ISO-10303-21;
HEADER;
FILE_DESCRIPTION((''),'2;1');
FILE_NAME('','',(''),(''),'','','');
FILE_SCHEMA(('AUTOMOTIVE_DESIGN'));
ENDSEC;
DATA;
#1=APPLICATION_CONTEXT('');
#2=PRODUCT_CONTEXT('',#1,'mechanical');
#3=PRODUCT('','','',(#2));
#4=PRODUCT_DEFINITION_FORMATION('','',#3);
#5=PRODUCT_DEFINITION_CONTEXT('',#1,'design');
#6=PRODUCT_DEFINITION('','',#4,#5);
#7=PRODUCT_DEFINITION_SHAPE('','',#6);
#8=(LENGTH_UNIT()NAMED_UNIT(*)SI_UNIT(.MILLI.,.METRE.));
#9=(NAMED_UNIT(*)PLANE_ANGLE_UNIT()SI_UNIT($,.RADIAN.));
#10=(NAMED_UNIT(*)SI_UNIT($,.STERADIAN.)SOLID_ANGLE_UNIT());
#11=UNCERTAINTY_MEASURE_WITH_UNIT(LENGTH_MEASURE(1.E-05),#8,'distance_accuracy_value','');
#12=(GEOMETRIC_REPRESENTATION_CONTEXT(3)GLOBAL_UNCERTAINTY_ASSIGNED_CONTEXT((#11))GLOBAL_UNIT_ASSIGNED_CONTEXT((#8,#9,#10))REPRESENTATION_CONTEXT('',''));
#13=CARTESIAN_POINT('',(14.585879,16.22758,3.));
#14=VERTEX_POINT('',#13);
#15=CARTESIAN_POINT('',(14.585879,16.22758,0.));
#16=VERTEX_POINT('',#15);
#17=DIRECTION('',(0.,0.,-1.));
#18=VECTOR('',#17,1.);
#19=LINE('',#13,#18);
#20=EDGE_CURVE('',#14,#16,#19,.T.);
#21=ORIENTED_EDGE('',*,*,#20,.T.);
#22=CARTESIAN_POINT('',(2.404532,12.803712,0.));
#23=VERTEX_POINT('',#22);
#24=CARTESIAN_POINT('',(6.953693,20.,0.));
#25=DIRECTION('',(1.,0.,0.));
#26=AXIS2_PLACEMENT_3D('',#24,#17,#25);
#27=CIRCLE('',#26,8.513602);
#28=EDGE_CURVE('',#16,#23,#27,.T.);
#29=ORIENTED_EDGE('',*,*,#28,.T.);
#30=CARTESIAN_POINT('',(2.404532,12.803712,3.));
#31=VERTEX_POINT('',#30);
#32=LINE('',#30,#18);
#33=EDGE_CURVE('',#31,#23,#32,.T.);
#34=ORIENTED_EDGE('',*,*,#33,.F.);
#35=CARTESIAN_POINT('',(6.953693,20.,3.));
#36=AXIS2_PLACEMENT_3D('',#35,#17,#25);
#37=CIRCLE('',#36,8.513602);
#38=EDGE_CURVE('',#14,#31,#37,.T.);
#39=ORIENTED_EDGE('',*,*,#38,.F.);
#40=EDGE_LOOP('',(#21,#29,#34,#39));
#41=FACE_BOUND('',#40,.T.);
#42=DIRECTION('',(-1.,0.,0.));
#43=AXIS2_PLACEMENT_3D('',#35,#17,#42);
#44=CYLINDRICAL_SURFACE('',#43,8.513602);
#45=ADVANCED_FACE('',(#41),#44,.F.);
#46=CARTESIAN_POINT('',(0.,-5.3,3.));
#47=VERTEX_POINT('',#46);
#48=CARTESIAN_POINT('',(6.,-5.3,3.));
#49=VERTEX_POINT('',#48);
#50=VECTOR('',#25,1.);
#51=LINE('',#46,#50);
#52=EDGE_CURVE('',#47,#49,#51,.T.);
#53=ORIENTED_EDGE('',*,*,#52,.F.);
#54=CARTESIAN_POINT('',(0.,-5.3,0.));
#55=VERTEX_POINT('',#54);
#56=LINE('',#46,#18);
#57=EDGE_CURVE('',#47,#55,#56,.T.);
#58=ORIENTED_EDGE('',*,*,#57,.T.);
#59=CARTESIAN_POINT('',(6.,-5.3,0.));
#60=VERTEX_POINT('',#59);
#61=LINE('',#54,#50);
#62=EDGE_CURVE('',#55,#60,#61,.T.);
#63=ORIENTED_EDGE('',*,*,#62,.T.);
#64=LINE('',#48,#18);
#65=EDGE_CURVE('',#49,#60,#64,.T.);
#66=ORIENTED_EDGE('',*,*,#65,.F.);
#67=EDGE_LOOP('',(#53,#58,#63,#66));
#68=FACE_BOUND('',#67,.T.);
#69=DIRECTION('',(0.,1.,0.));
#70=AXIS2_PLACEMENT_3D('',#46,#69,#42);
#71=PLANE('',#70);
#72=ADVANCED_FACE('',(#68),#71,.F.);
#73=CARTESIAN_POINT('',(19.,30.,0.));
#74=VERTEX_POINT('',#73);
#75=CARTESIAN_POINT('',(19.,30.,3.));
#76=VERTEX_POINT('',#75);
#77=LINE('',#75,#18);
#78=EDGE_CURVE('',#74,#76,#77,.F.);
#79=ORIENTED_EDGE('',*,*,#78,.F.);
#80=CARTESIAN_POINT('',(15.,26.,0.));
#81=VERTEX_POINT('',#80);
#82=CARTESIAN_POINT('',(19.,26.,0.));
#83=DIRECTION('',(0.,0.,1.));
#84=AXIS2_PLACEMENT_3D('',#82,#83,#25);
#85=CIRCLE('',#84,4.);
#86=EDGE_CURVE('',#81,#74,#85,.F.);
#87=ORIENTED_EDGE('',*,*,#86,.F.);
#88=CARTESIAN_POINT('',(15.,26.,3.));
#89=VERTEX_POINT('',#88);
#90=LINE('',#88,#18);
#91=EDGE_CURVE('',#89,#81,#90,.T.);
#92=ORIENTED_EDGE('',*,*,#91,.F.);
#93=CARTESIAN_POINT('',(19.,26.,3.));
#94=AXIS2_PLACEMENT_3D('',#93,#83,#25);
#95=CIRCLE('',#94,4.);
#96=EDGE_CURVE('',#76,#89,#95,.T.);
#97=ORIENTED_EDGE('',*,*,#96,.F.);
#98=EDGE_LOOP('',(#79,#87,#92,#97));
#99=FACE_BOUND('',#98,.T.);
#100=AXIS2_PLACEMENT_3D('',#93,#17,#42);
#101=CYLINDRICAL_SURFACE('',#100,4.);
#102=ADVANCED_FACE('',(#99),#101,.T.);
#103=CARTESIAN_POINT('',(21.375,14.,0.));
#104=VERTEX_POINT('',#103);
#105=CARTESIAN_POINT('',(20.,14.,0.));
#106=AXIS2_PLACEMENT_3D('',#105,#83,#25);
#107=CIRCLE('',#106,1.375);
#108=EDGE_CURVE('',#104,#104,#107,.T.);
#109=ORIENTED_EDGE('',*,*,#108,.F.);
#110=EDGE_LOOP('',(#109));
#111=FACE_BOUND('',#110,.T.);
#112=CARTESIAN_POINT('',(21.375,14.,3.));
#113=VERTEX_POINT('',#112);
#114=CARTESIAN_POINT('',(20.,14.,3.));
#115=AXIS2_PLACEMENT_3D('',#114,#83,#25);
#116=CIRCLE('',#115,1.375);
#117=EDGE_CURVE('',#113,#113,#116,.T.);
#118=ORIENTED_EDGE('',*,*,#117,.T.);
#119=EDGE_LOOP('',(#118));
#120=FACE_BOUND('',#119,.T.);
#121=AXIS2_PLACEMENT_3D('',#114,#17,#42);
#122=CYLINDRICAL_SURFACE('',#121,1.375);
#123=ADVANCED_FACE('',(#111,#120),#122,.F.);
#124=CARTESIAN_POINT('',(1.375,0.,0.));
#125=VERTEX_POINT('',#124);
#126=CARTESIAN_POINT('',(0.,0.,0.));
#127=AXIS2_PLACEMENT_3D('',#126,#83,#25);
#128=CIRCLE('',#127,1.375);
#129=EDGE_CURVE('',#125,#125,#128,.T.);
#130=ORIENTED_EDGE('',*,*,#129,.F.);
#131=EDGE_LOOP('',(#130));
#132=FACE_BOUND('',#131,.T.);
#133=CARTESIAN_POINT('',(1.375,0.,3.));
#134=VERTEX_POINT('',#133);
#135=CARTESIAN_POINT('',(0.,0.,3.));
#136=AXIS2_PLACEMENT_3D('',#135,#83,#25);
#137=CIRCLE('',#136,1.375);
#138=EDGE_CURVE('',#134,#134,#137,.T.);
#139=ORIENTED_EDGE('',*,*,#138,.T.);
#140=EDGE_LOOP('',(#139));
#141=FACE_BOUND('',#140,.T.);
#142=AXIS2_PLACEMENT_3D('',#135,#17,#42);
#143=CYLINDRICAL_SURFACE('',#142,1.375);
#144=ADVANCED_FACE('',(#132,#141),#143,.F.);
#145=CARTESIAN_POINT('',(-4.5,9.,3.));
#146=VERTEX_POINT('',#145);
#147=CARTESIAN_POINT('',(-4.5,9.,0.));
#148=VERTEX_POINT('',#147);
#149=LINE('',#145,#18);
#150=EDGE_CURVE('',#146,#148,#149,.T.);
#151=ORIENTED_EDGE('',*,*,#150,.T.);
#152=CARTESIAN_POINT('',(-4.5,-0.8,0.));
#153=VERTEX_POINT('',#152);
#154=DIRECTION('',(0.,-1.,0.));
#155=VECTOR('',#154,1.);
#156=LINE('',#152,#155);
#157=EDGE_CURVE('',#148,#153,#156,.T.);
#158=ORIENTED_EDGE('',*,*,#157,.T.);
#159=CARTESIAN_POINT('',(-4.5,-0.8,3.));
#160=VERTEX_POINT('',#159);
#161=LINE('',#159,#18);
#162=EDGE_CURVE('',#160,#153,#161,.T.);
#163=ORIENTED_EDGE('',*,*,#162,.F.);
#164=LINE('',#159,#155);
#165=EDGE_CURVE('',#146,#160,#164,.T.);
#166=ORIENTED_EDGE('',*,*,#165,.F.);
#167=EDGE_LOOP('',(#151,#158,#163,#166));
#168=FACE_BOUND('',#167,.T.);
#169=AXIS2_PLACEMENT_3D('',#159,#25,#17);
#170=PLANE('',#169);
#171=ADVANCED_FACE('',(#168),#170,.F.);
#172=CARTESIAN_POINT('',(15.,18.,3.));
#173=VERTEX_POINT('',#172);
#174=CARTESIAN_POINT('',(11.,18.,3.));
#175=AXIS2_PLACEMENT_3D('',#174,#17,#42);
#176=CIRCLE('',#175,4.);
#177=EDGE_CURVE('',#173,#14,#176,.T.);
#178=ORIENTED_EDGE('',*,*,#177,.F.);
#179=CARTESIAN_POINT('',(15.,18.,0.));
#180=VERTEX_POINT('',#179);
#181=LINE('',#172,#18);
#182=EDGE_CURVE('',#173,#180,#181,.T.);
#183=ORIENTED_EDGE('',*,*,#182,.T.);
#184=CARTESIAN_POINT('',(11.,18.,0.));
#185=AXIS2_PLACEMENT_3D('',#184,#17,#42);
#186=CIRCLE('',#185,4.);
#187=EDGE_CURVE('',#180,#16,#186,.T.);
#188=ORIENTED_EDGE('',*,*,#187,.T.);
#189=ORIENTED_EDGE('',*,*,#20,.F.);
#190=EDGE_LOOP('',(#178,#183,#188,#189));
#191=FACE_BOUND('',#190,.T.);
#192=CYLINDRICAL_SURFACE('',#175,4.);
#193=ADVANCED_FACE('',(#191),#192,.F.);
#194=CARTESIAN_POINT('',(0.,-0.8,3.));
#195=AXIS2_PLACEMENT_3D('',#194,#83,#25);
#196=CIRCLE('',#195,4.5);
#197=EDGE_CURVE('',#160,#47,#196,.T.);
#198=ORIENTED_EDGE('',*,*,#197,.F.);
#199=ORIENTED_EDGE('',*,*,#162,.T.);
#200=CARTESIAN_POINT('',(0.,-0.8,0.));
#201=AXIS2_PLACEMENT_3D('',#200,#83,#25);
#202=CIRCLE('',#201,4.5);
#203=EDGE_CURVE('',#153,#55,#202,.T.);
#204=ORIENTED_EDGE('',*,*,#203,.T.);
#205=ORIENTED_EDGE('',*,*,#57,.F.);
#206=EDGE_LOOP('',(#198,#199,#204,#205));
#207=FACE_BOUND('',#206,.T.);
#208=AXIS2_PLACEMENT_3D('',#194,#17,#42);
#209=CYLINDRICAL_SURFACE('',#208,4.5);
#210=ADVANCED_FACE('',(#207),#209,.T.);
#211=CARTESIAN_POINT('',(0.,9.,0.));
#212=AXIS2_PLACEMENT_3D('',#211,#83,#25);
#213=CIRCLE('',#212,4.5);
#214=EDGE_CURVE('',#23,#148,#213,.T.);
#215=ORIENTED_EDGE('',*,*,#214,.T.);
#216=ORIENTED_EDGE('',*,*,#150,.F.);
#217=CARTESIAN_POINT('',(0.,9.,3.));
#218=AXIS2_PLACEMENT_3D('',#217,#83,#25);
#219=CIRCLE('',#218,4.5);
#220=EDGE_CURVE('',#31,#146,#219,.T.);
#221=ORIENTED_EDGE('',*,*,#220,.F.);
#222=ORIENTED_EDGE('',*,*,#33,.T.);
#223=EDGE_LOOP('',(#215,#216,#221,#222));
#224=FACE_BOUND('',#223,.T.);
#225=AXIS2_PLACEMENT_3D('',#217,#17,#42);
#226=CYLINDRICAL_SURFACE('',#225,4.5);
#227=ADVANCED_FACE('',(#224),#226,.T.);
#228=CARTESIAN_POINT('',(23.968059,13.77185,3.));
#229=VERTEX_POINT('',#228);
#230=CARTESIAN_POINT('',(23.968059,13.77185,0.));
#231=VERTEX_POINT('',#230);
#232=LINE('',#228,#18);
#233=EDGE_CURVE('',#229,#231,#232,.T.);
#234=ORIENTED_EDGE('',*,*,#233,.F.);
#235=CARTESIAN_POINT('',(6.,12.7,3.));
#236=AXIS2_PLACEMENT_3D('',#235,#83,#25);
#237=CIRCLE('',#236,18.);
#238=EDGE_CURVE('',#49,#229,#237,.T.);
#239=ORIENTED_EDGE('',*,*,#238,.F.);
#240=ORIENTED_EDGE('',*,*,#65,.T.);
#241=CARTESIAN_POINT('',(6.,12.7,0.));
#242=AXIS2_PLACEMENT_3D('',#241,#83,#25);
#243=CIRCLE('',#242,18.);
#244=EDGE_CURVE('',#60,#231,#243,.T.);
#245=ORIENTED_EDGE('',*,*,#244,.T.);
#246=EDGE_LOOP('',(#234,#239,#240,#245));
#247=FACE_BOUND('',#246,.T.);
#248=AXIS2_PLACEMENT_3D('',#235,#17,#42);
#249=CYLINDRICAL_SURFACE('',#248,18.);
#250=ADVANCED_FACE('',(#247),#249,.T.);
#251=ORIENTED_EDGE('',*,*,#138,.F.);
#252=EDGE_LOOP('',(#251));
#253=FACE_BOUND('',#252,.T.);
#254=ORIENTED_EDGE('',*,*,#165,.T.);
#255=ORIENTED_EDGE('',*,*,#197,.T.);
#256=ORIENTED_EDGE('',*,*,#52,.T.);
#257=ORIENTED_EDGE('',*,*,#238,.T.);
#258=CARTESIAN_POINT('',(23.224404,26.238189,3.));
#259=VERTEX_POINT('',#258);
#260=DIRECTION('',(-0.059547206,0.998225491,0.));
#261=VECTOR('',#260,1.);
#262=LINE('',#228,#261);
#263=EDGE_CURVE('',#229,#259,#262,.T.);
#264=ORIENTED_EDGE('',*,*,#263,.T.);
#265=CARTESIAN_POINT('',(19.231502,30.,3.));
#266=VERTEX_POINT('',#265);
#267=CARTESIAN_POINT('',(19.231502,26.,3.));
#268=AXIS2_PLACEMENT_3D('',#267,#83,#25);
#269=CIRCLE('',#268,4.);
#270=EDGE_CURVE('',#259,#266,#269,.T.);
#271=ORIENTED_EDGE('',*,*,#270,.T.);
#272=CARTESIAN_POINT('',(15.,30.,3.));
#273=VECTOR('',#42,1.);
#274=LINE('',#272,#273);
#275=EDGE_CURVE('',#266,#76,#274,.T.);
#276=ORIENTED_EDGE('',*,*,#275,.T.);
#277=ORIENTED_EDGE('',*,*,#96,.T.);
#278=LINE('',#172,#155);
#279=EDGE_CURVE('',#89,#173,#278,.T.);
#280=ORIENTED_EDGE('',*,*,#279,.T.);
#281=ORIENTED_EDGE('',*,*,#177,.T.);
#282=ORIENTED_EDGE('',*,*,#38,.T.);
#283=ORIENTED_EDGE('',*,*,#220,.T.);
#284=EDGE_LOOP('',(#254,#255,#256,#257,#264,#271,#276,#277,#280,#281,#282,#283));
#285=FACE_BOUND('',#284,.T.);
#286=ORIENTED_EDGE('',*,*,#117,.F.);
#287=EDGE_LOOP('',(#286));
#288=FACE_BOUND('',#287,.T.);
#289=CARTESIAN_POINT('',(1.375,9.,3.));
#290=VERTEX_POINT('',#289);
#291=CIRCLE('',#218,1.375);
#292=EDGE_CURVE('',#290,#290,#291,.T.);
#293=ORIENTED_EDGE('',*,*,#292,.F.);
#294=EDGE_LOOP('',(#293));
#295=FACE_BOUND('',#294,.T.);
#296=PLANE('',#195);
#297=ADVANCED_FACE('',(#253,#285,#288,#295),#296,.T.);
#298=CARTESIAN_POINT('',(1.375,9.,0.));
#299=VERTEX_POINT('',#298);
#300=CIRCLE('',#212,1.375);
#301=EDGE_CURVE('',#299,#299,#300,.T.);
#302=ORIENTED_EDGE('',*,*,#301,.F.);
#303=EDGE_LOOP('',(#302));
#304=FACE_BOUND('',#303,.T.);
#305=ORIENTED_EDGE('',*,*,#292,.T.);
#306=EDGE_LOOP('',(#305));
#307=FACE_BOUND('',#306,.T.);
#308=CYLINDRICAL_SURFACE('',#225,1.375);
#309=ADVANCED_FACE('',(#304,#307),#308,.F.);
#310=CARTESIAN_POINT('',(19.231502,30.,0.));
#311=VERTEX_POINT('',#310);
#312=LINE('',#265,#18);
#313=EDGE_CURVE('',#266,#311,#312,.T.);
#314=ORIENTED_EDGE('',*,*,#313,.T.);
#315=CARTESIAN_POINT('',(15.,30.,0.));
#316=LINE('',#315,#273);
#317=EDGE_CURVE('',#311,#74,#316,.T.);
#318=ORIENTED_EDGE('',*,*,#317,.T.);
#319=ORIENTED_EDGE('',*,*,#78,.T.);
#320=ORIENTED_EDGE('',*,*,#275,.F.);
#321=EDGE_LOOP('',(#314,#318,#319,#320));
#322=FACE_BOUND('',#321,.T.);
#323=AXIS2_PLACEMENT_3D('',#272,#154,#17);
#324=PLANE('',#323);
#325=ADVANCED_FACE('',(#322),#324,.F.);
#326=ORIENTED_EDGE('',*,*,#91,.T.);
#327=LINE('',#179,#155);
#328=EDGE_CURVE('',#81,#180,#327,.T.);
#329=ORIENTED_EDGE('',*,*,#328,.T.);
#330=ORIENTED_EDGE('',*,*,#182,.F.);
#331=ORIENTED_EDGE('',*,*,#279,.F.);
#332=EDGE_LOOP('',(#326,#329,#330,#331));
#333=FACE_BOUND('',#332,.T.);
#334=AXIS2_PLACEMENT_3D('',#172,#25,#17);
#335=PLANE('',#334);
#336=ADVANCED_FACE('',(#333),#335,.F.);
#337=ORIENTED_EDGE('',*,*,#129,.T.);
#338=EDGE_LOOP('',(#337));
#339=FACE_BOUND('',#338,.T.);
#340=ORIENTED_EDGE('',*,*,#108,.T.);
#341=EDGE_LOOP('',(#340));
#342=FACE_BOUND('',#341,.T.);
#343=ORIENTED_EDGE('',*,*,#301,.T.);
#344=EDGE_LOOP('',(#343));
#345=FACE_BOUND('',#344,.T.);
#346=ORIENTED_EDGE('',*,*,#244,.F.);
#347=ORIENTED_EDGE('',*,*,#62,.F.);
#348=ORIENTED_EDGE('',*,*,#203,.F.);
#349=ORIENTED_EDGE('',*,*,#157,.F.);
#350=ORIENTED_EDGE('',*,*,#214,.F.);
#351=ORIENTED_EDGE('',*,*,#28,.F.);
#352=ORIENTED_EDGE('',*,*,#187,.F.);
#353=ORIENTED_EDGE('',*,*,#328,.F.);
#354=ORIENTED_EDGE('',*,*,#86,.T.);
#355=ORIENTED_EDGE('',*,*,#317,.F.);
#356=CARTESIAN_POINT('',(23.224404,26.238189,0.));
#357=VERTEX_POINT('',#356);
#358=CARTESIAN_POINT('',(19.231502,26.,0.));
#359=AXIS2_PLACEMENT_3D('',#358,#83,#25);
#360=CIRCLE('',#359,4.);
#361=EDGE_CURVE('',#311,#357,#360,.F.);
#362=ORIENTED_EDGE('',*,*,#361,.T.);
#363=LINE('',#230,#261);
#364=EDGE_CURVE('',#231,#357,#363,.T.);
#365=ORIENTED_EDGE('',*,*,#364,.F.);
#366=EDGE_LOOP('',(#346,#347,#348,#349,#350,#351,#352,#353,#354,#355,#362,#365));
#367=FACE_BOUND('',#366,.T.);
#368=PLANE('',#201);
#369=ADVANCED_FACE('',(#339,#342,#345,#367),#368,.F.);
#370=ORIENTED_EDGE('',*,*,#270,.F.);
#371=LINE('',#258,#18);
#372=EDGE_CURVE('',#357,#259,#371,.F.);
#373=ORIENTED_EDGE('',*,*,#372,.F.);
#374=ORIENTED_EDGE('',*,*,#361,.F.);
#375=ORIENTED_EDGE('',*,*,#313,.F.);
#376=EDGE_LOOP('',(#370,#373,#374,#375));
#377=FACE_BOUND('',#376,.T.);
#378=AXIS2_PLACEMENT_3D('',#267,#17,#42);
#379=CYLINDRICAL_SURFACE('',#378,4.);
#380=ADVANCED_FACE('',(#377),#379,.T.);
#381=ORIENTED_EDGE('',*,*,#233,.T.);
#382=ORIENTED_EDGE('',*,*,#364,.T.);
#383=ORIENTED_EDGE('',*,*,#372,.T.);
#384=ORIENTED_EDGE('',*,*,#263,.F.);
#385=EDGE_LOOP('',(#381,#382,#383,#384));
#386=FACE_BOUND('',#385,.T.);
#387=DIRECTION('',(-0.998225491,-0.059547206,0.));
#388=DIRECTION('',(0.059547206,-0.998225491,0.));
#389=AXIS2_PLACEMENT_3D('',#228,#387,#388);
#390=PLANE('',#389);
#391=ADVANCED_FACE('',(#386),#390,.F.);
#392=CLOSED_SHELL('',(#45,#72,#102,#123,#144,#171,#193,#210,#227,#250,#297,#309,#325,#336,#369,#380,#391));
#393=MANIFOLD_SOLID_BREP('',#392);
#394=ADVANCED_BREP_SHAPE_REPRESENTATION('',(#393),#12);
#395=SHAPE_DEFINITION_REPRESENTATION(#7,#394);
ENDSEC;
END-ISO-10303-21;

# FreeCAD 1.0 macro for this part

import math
import FreeCAD as App
import Part
import Sketcher
from FreeCAD import Vector


def edges_at(feature, points):
    """Names of the edges that pass closest to the given points."""
    edges = feature.Shape.Edges
    near = lambda p: min(range(len(edges)), key=lambda i: edges[i].distToShape(Part.Vertex(*p))[0])
    return sorted({f"Edge{near(p) + 1}" for p in points})

doc = App.newDocument("Part")
body = doc.addObject("PartDesign::Body", "Body")

# Sketch on XY plane
sketch1 = body.newObject("Sketcher::SketchObject", "Sketch")
sketch1.AttachmentSupport = (doc.getObject("XY_Plane"), [""])
sketch1.MapMode = "FlatFace"
sketch1.addGeometry([
    Part.LineSegment(Vector(-4.5, 9, 0), Vector(-4.5, -0.8, 0)),  # 0
    Part.ArcOfCircle(Part.Circle(Vector(0, -0.8, 0), Vector(0, 0, 1), 4.5), math.radians(-180), math.radians(-90)),  # 1
    Part.LineSegment(Vector(0, -5.3, 0), Vector(6, -5.3, 0)),  # 2
    Part.ArcOfCircle(Part.Circle(Vector(6, 12.7, 0), Vector(0, 0, 1), 18), math.radians(-90), math.radians(3.413823)),  # 3
    Part.LineSegment(Vector(23.968059, 13.77185, 0), Vector(23, 30, 0)),  # 4
    Part.LineSegment(Vector(23, 30, 0), Vector(15, 30, 0)),  # 5
    Part.LineSegment(Vector(15, 30, 0), Vector(15, 18, 0)),  # 6
    Part.ArcOfCircle(Part.Circle(Vector(11, 18, 0), Vector(0, 0, 1), 4), math.radians(-26.302166), math.radians(0)),  # 7
    Part.ArcOfCircle(Part.Circle(Vector(6.953693, 20, 0), Vector(0, 0, 1), 8.513602), math.radians(-122.299186), math.radians(-26.302166)),  # 8
    Part.ArcOfCircle(Part.Circle(Vector(0, 9, 0), Vector(0, 0, 1), 4.5), math.radians(57.700814), math.radians(180)),  # 9
    Part.Circle(Vector(0, 0, 0), Vector(0, 0, 1), 1.375),  # 10
    Part.Circle(Vector(20, 14, 0), Vector(0, 0, 1), 1.375),  # 11
    Part.Circle(Vector(0, 9, 0), Vector(0, 0, 1), 1.375),  # 12
], False)
sketch1.addConstraint([
    Sketcher.Constraint("Tangent", 0, 2, 1, 1),
    Sketcher.Constraint("Tangent", 1, 2, 2, 1),
    Sketcher.Constraint("Tangent", 2, 2, 3, 1),
    Sketcher.Constraint("Tangent", 3, 2, 4, 1),
    Sketcher.Constraint("Coincident", 4, 2, 5, 1),
    Sketcher.Constraint("Coincident", 5, 2, 6, 1),
    Sketcher.Constraint("Tangent", 6, 2, 7, 2),
    Sketcher.Constraint("Tangent", 7, 1, 8, 2),
    Sketcher.Constraint("Tangent", 8, 1, 9, 1),
    Sketcher.Constraint("Tangent", 9, 2, 0, 1),
    Sketcher.Constraint("Vertical", 0),
    Sketcher.Constraint("Horizontal", 2),
    Sketcher.Constraint("Horizontal", 5),
    Sketcher.Constraint("Vertical", 6),
    Sketcher.Constraint("Coincident", 10, 3, -1, 1),
    Sketcher.Constraint("Coincident", 12, 3, 9, 3),
    Sketcher.Constraint("Equal", 1, 9),
    Sketcher.Constraint("Equal", 10, 11),
    Sketcher.Constraint("Equal", 11, 12),
    Sketcher.Constraint("PointOnObject", 1, 3, -2),
    Sketcher.Constraint("Radius", 3, 18.0),
    Sketcher.Constraint("Radius", 7, 4.0),
    Sketcher.Constraint("Radius", 1, 4.5),
    Sketcher.Constraint("Diameter", 10, 2.75),
    Sketcher.Constraint("DistanceX", 2, 1, 2, 2, 6.0),
    Sketcher.Constraint("DistanceX", 5, 2, 5, 1, 8.0),
    Sketcher.Constraint("DistanceY", 6, 2, 6, 1, 12.0),
    Sketcher.Constraint("DistanceY", 0, 2, 0, 1, 9.8),
    Sketcher.Constraint("DistanceX", -1, 1, 7, 3, 11.0),
    Sketcher.Constraint("DistanceY", -1, 1, 7, 3, 18.0),
    Sketcher.Constraint("DistanceY", -1, 1, 8, 3, 20.0),
    Sketcher.Constraint("DistanceY", -1, 1, 9, 3, 9.0),
    Sketcher.Constraint("DistanceX", -1, 1, 11, 3, 20.0),
    Sketcher.Constraint("DistanceY", -1, 1, 11, 3, 14.0),
])
pad1 = body.newObject("PartDesign::Pad", "Pad")
pad1.Profile = sketch1
pad1.Length = 3
doc.recompute()

fillet = body.newObject("PartDesign::Fillet", "Fillet")
fillet.Base = (pad1, edges_at(pad1, [(15, 30, 1.5), (23, 30, 1.5)]))
fillet.Radius = 4

doc.recompute()
